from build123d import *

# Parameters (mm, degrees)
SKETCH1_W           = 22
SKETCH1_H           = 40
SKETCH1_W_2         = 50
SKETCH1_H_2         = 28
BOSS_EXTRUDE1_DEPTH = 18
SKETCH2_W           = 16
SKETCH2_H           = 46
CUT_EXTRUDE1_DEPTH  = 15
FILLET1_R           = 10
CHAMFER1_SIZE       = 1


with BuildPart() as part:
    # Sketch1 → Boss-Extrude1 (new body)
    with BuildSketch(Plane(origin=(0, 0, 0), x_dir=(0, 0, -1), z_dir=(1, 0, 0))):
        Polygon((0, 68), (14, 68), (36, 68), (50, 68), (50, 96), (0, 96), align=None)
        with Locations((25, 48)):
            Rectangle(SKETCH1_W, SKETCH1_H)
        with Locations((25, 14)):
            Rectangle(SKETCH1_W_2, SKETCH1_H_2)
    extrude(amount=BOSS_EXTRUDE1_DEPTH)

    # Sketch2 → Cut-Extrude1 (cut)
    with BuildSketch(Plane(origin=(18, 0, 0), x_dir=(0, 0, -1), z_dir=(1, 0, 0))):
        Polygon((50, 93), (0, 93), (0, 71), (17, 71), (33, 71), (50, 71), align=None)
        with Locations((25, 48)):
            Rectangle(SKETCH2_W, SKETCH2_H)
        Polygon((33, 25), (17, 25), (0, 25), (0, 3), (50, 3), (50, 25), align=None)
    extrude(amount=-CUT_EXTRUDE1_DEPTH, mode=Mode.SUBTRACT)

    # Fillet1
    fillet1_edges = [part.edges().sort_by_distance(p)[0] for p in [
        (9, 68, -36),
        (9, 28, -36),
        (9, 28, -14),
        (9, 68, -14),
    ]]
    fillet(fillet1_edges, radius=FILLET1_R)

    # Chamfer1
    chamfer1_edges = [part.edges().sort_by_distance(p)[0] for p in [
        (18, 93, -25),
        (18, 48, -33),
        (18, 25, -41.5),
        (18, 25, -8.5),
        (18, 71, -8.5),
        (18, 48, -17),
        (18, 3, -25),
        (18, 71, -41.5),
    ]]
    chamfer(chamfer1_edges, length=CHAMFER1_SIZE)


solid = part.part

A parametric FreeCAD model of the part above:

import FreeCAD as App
import Part
import Sketcher

V = App.Vector
Q = App.Units.Quantity


def edges_at(feature, points):
    """Names of the edges that pass closest to the given points."""
    edges = feature.Shape.Edges
    near = lambda p: min(range(len(edges)), key=lambda i: edges[i].distToShape(Part.Vertex(*p))[0])
    return sorted({f"Edge{near(p) + 1}" for p in points})

doc = App.newDocument("Part")
body = doc.addObject("PartDesign::Body", "Body")

sketch1 = body.newObject("Sketcher::SketchObject", "Sketch")
sketch1.AttachmentSupport = (doc.getObject("YZ_Plane"), [""])
sketch1.MapMode = "FlatFace"
sketch1.addGeometry(Part.LineSegment(V(68, 0, 0), V(68, -14, 0)), False)
sketch1.addGeometry(Part.LineSegment(V(68, -14, 0), V(28, -14, 0)), False)
sketch1.addGeometry(Part.LineSegment(V(28, -14, 0), V(28, 0, 0)), False)
sketch1.addGeometry(Part.LineSegment(V(28, 0, 0), V(0, 0, 0)), False)
sketch1.addGeometry(Part.LineSegment(V(0, 0, 0), V(0, -50, 0)), False)
sketch1.addGeometry(Part.LineSegment(V(0, -50, 0), V(28, -50, 0)), False)
sketch1.addGeometry(Part.LineSegment(V(28, -50, 0), V(28, -36, 0)), False)
sketch1.addGeometry(Part.LineSegment(V(28, -36, 0), V(68, -36, 0)), False)
sketch1.addGeometry(Part.LineSegment(V(68, -36, 0), V(68, -50, 0)), False)
sketch1.addGeometry(Part.LineSegment(V(68, -50, 0), V(96, -50, 0)), False)
sketch1.addGeometry(Part.LineSegment(V(96, -50, 0), V(96, 0, 0)), False)
sketch1.addGeometry(Part.LineSegment(V(96, 0, 0), V(68, 0, 0)), False)
sketch1.addConstraint(Sketcher.Constraint("Coincident", 0, 2, 1, 1))
sketch1.addConstraint(Sketcher.Constraint("Coincident", 1, 2, 2, 1))
sketch1.addConstraint(Sketcher.Constraint("Coincident", 2, 2, 3, 1))
sketch1.addConstraint(Sketcher.Constraint("Coincident", 3, 2, 4, 1))
sketch1.addConstraint(Sketcher.Constraint("Coincident", 4, 2, 5, 1))
sketch1.addConstraint(Sketcher.Constraint("Coincident", 5, 2, 6, 1))
sketch1.addConstraint(Sketcher.Constraint("Coincident", 6, 2, 7, 1))
sketch1.addConstraint(Sketcher.Constraint("Coincident", 7, 2, 8, 1))
sketch1.addConstraint(Sketcher.Constraint("Coincident", 8, 2, 9, 1))
sketch1.addConstraint(Sketcher.Constraint("Coincident", 9, 2, 10, 1))
sketch1.addConstraint(Sketcher.Constraint("Coincident", 10, 2, 11, 1))
sketch1.addConstraint(Sketcher.Constraint("Coincident", 11, 2, 0, 1))
sketch1.addConstraint(Sketcher.Constraint("Vertical", 0))
sketch1.addConstraint(Sketcher.Constraint("Horizontal", 1))
sketch1.addConstraint(Sketcher.Constraint("Vertical", 2))
sketch1.addConstraint(Sketcher.Constraint("Horizontal", 3))
sketch1.addConstraint(Sketcher.Constraint("Vertical", 4))
sketch1.addConstraint(Sketcher.Constraint("Horizontal", 5))
sketch1.addConstraint(Sketcher.Constraint("Vertical", 6))
sketch1.addConstraint(Sketcher.Constraint("Horizontal", 7))
sketch1.addConstraint(Sketcher.Constraint("Vertical", 8))
sketch1.addConstraint(Sketcher.Constraint("Horizontal", 9))
sketch1.addConstraint(Sketcher.Constraint("Vertical", 10))
sketch1.addConstraint(Sketcher.Constraint("Horizontal", 11))
sketch1.addConstraint(Sketcher.Constraint("Coincident", 3, 2, -1, 1))
sketch1.addConstraint(Sketcher.Constraint("PointOnObject", 10, 2, -1))
sketch1.addConstraint(Sketcher.Constraint("Horizontal", 5, 2, 8, 2))
sketch1.addConstraint(Sketcher.Constraint("Vertical", 2, 2, 5, 2))
sketch1.addConstraint(Sketcher.Constraint("Vertical", 0, 2, 7, 2))
sketch1.addConstraint(Sketcher.Constraint("Equal", 5, 9))
sketch1.addConstraint(Sketcher.Constraint("Equal", 2, 6))
sketch1.addConstraint(Sketcher.Constraint("DistanceX", 1, 2, 1, 1, Q("40 mm")))
sketch1.addConstraint(Sketcher.Constraint("DistanceX", 3, 2, 3, 1, Q("28 mm")))
sketch1.addConstraint(Sketcher.Constraint("DistanceY", 0, 2, 0, 1, Q("14 mm")))
sketch1.addConstraint(Sketcher.Constraint("DistanceY", 4, 2, 4, 1, Q("50 mm")))
pad1 = body.newObject("PartDesign::Pad", "Pad")
pad1.Profile = sketch1
pad1.Length = 18

sketch2 = body.newObject("Sketcher::SketchObject", "Sketch001")
sketch2.AttachmentSupport = (doc.getObject("YZ_Plane"), [""])
sketch2.MapMode = "FlatFace"
sketch2.AttachmentOffset = App.Placement(V(0, 0, 18), App.Rotation())
sketch2.addGeometry(Part.LineSegment(V(93, -50, 0), V(93, 0, 0)), False)
sketch2.addGeometry(Part.LineSegment(V(93, 0, 0), V(71, 0, 0)), False)
sketch2.addGeometry(Part.LineSegment(V(71, 0, 0), V(71, -17, 0)), False)
sketch2.addGeometry(Part.LineSegment(V(71, -17, 0), V(25, -17, 0)), False)
sketch2.addGeometry(Part.LineSegment(V(25, -17, 0), V(25, 0, 0)), False)
sketch2.addGeometry(Part.LineSegment(V(25, 0, 0), V(3, 0, 0)), False)
sketch2.addGeometry(Part.LineSegment(V(3, 0, 0), V(3, -50, 0)), False)
sketch2.addGeometry(Part.LineSegment(V(3, -50, 0), V(25, -50, 0)), False)
sketch2.addGeometry(Part.LineSegment(V(25, -50, 0), V(25, -33, 0)), False)
sketch2.addGeometry(Part.LineSegment(V(25, -33, 0), V(71, -33, 0)), False)
sketch2.addGeometry(Part.LineSegment(V(71, -33, 0), V(71, -50, 0)), False)
sketch2.addGeometry(Part.LineSegment(V(71, -50, 0), V(93, -50, 0)), False)
sketch2.addConstraint(Sketcher.Constraint("Coincident", 0, 2, 1, 1))
sketch2.addConstraint(Sketcher.Constraint("Coincident", 1, 2, 2, 1))
sketch2.addConstraint(Sketcher.Constraint("Coincident", 2, 2, 3, 1))
sketch2.addConstraint(Sketcher.Constraint("Coincident", 3, 2, 4, 1))
sketch2.addConstraint(Sketcher.Constraint("Coincident", 4, 2, 5, 1))
sketch2.addConstraint(Sketcher.Constraint("Coincident", 5, 2, 6, 1))
sketch2.addConstraint(Sketcher.Constraint("Coincident", 6, 2, 7, 1))
sketch2.addConstraint(Sketcher.Constraint("Coincident", 7, 2, 8, 1))
sketch2.addConstraint(Sketcher.Constraint("Coincident", 8, 2, 9, 1))
sketch2.addConstraint(Sketcher.Constraint("Coincident", 9, 2, 10, 1))
sketch2.addConstraint(Sketcher.Constraint("Coincident", 10, 2, 11, 1))
sketch2.addConstraint(Sketcher.Constraint("Coincident", 11, 2, 0, 1))
sketch2.addConstraint(Sketcher.Constraint("Vertical", 0))
sketch2.addConstraint(Sketcher.Constraint("Horizontal", 1))
sketch2.addConstraint(Sketcher.Constraint("Vertical", 2))
sketch2.addConstraint(Sketcher.Constraint("Horizontal", 3))
sketch2.addConstraint(Sketcher.Constraint("Vertical", 4))
sketch2.addConstraint(Sketcher.Constraint("Horizontal", 5))
sketch2.addConstraint(Sketcher.Constraint("Vertical", 6))
sketch2.addConstraint(Sketcher.Constraint("Horizontal", 7))
sketch2.addConstraint(Sketcher.Constraint("Vertical", 8))
sketch2.addConstraint(Sketcher.Constraint("Horizontal", 9))
sketch2.addConstraint(Sketcher.Constraint("Vertical", 10))
sketch2.addConstraint(Sketcher.Constraint("Horizontal", 11))
sketch2.addConstraint(Sketcher.Constraint("PointOnObject", 0, 2, -1))
sketch2.addConstraint(Sketcher.Constraint("PointOnObject", 4, 2, -1))
sketch2.addConstraint(Sketcher.Constraint("Horizontal", 7, 2, 10, 2))
sketch2.addConstraint(Sketcher.Constraint("Vertical", 4, 2, 7, 2))
sketch2.addConstraint(Sketcher.Constraint("Vertical", 2, 2, 9, 2))
sketch2.addConstraint(Sketcher.Constraint("Equal", 1, 5))
sketch2.addConstraint(Sketcher.Constraint("Equal", 4, 8))
sketch2.addConstraint(Sketcher.Constraint("DistanceX", 1, 2, 1, 1, Q("22 mm")))
sketch2.addConstraint(Sketcher.Constraint("DistanceX", 3, 2, 3, 1, Q("46 mm")))
sketch2.addConstraint(Sketcher.Constraint("DistanceY", 0, 1, 0, 2, Q("50 mm")))
sketch2.addConstraint(Sketcher.Constraint("DistanceY", 2, 2, 2, 1, Q("17 mm")))
sketch2.addConstraint(Sketcher.Constraint("DistanceX", -1, 1, 0, 2, Q("93 mm")))
pocket1 = body.newObject("PartDesign::Pocket", "Pocket")
pocket1.Profile = sketch2
pocket1.Length = 15
doc.recompute()

fillet = body.newObject("PartDesign::Fillet", "Fillet")
fillet.Base = (pocket1, edges_at(pocket1, [
    (9, 68, -36),
    (9, 28, -36),
    (9, 28, -14),
    (9, 68, -14),
]))
fillet.Radius = 10
doc.recompute()

chamfer = body.newObject("PartDesign::Chamfer", "Chamfer")
chamfer.Base = (fillet, edges_at(fillet, [
    (18, 93, -25),
    (18, 48, -33),
    (18, 25, -41.5),
    (18, 25, -8.5),
    (18, 71, -8.5),
    (18, 48, -17),
    (18, 3, -25),
    (18, 71, -41.5),
]))
chamfer.Size = 1

doc.recompute()
